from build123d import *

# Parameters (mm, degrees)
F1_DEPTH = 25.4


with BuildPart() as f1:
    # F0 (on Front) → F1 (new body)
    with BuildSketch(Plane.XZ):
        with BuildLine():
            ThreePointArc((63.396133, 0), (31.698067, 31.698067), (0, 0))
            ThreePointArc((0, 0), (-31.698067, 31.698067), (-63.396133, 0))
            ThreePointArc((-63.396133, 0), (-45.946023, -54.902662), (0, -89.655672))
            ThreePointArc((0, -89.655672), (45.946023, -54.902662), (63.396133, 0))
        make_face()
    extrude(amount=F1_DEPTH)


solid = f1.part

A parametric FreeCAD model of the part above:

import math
import FreeCAD as App
import Part
import Sketcher
from FreeCAD import Vector
Q = App.Units.Quantity

doc = App.newDocument("Part")
body = doc.addObject("PartDesign::Body", "Body")

# Sketch on XZ plane
sketch1 = body.newObject("Sketcher::SketchObject", "Sketch")
sketch1.AttachmentSupport = (doc.getObject("XZ_Plane"), [""])
sketch1.MapMode = "FlatFace"
sketch1.addGeometry(Part.ArcOfCircle(Part.Circle(Vector(32, 0, 0), Vector(0, 0, 1), 32), math.radians(0), math.radians(180)), False)
sketch1.addGeometry(Part.ArcOfCircle(Part.Circle(Vector(-32, 0, 0), Vector(0, 0, 1), 32), math.radians(0), math.radians(180)), False)
sketch1.addGeometry(Part.ArcOfCircle(Part.Circle(Vector(32, 0, 0), Vector(0, 0, 1), 95), math.radians(180), math.radians(251)), False)
sketch1.addGeometry(Part.ArcOfCircle(Part.Circle(Vector(-32, 0, 0), Vector(0, 0, 1), 95), math.radians(-71), math.radians(0)), False)
sketch1.addConstraint(Sketcher.Constraint("Tangent", 0, 2, 1, 1))
sketch1.addConstraint(Sketcher.Constraint("Tangent", 1, 2, 2, 1))
sketch1.addConstraint(Sketcher.Constraint("Coincident", 2, 2, 3, 1))
sketch1.addConstraint(Sketcher.Constraint("Tangent", 3, 2, 0, 1))
sketch1.addConstraint(Sketcher.Constraint("Coincident", 0, 2, -1, 1))
sketch1.addConstraint(Sketcher.Constraint("Coincident", 2, 3, 0, 3))
sketch1.addConstraint(Sketcher.Constraint("Coincident", 3, 3, 1, 3))
sketch1.addConstraint(Sketcher.Constraint("Equal", 0, 1))
sketch1.addConstraint(Sketcher.Constraint("PointOnObject", 0, 3, -1))
sketch1.addConstraint(Sketcher.Constraint("Radius", 2, 95.094198))
pad1 = body.newObject("PartDesign::Pad", "Pad")
pad1.Profile = sketch1
pad1.Length = Q("1 in")

doc.recompute()
